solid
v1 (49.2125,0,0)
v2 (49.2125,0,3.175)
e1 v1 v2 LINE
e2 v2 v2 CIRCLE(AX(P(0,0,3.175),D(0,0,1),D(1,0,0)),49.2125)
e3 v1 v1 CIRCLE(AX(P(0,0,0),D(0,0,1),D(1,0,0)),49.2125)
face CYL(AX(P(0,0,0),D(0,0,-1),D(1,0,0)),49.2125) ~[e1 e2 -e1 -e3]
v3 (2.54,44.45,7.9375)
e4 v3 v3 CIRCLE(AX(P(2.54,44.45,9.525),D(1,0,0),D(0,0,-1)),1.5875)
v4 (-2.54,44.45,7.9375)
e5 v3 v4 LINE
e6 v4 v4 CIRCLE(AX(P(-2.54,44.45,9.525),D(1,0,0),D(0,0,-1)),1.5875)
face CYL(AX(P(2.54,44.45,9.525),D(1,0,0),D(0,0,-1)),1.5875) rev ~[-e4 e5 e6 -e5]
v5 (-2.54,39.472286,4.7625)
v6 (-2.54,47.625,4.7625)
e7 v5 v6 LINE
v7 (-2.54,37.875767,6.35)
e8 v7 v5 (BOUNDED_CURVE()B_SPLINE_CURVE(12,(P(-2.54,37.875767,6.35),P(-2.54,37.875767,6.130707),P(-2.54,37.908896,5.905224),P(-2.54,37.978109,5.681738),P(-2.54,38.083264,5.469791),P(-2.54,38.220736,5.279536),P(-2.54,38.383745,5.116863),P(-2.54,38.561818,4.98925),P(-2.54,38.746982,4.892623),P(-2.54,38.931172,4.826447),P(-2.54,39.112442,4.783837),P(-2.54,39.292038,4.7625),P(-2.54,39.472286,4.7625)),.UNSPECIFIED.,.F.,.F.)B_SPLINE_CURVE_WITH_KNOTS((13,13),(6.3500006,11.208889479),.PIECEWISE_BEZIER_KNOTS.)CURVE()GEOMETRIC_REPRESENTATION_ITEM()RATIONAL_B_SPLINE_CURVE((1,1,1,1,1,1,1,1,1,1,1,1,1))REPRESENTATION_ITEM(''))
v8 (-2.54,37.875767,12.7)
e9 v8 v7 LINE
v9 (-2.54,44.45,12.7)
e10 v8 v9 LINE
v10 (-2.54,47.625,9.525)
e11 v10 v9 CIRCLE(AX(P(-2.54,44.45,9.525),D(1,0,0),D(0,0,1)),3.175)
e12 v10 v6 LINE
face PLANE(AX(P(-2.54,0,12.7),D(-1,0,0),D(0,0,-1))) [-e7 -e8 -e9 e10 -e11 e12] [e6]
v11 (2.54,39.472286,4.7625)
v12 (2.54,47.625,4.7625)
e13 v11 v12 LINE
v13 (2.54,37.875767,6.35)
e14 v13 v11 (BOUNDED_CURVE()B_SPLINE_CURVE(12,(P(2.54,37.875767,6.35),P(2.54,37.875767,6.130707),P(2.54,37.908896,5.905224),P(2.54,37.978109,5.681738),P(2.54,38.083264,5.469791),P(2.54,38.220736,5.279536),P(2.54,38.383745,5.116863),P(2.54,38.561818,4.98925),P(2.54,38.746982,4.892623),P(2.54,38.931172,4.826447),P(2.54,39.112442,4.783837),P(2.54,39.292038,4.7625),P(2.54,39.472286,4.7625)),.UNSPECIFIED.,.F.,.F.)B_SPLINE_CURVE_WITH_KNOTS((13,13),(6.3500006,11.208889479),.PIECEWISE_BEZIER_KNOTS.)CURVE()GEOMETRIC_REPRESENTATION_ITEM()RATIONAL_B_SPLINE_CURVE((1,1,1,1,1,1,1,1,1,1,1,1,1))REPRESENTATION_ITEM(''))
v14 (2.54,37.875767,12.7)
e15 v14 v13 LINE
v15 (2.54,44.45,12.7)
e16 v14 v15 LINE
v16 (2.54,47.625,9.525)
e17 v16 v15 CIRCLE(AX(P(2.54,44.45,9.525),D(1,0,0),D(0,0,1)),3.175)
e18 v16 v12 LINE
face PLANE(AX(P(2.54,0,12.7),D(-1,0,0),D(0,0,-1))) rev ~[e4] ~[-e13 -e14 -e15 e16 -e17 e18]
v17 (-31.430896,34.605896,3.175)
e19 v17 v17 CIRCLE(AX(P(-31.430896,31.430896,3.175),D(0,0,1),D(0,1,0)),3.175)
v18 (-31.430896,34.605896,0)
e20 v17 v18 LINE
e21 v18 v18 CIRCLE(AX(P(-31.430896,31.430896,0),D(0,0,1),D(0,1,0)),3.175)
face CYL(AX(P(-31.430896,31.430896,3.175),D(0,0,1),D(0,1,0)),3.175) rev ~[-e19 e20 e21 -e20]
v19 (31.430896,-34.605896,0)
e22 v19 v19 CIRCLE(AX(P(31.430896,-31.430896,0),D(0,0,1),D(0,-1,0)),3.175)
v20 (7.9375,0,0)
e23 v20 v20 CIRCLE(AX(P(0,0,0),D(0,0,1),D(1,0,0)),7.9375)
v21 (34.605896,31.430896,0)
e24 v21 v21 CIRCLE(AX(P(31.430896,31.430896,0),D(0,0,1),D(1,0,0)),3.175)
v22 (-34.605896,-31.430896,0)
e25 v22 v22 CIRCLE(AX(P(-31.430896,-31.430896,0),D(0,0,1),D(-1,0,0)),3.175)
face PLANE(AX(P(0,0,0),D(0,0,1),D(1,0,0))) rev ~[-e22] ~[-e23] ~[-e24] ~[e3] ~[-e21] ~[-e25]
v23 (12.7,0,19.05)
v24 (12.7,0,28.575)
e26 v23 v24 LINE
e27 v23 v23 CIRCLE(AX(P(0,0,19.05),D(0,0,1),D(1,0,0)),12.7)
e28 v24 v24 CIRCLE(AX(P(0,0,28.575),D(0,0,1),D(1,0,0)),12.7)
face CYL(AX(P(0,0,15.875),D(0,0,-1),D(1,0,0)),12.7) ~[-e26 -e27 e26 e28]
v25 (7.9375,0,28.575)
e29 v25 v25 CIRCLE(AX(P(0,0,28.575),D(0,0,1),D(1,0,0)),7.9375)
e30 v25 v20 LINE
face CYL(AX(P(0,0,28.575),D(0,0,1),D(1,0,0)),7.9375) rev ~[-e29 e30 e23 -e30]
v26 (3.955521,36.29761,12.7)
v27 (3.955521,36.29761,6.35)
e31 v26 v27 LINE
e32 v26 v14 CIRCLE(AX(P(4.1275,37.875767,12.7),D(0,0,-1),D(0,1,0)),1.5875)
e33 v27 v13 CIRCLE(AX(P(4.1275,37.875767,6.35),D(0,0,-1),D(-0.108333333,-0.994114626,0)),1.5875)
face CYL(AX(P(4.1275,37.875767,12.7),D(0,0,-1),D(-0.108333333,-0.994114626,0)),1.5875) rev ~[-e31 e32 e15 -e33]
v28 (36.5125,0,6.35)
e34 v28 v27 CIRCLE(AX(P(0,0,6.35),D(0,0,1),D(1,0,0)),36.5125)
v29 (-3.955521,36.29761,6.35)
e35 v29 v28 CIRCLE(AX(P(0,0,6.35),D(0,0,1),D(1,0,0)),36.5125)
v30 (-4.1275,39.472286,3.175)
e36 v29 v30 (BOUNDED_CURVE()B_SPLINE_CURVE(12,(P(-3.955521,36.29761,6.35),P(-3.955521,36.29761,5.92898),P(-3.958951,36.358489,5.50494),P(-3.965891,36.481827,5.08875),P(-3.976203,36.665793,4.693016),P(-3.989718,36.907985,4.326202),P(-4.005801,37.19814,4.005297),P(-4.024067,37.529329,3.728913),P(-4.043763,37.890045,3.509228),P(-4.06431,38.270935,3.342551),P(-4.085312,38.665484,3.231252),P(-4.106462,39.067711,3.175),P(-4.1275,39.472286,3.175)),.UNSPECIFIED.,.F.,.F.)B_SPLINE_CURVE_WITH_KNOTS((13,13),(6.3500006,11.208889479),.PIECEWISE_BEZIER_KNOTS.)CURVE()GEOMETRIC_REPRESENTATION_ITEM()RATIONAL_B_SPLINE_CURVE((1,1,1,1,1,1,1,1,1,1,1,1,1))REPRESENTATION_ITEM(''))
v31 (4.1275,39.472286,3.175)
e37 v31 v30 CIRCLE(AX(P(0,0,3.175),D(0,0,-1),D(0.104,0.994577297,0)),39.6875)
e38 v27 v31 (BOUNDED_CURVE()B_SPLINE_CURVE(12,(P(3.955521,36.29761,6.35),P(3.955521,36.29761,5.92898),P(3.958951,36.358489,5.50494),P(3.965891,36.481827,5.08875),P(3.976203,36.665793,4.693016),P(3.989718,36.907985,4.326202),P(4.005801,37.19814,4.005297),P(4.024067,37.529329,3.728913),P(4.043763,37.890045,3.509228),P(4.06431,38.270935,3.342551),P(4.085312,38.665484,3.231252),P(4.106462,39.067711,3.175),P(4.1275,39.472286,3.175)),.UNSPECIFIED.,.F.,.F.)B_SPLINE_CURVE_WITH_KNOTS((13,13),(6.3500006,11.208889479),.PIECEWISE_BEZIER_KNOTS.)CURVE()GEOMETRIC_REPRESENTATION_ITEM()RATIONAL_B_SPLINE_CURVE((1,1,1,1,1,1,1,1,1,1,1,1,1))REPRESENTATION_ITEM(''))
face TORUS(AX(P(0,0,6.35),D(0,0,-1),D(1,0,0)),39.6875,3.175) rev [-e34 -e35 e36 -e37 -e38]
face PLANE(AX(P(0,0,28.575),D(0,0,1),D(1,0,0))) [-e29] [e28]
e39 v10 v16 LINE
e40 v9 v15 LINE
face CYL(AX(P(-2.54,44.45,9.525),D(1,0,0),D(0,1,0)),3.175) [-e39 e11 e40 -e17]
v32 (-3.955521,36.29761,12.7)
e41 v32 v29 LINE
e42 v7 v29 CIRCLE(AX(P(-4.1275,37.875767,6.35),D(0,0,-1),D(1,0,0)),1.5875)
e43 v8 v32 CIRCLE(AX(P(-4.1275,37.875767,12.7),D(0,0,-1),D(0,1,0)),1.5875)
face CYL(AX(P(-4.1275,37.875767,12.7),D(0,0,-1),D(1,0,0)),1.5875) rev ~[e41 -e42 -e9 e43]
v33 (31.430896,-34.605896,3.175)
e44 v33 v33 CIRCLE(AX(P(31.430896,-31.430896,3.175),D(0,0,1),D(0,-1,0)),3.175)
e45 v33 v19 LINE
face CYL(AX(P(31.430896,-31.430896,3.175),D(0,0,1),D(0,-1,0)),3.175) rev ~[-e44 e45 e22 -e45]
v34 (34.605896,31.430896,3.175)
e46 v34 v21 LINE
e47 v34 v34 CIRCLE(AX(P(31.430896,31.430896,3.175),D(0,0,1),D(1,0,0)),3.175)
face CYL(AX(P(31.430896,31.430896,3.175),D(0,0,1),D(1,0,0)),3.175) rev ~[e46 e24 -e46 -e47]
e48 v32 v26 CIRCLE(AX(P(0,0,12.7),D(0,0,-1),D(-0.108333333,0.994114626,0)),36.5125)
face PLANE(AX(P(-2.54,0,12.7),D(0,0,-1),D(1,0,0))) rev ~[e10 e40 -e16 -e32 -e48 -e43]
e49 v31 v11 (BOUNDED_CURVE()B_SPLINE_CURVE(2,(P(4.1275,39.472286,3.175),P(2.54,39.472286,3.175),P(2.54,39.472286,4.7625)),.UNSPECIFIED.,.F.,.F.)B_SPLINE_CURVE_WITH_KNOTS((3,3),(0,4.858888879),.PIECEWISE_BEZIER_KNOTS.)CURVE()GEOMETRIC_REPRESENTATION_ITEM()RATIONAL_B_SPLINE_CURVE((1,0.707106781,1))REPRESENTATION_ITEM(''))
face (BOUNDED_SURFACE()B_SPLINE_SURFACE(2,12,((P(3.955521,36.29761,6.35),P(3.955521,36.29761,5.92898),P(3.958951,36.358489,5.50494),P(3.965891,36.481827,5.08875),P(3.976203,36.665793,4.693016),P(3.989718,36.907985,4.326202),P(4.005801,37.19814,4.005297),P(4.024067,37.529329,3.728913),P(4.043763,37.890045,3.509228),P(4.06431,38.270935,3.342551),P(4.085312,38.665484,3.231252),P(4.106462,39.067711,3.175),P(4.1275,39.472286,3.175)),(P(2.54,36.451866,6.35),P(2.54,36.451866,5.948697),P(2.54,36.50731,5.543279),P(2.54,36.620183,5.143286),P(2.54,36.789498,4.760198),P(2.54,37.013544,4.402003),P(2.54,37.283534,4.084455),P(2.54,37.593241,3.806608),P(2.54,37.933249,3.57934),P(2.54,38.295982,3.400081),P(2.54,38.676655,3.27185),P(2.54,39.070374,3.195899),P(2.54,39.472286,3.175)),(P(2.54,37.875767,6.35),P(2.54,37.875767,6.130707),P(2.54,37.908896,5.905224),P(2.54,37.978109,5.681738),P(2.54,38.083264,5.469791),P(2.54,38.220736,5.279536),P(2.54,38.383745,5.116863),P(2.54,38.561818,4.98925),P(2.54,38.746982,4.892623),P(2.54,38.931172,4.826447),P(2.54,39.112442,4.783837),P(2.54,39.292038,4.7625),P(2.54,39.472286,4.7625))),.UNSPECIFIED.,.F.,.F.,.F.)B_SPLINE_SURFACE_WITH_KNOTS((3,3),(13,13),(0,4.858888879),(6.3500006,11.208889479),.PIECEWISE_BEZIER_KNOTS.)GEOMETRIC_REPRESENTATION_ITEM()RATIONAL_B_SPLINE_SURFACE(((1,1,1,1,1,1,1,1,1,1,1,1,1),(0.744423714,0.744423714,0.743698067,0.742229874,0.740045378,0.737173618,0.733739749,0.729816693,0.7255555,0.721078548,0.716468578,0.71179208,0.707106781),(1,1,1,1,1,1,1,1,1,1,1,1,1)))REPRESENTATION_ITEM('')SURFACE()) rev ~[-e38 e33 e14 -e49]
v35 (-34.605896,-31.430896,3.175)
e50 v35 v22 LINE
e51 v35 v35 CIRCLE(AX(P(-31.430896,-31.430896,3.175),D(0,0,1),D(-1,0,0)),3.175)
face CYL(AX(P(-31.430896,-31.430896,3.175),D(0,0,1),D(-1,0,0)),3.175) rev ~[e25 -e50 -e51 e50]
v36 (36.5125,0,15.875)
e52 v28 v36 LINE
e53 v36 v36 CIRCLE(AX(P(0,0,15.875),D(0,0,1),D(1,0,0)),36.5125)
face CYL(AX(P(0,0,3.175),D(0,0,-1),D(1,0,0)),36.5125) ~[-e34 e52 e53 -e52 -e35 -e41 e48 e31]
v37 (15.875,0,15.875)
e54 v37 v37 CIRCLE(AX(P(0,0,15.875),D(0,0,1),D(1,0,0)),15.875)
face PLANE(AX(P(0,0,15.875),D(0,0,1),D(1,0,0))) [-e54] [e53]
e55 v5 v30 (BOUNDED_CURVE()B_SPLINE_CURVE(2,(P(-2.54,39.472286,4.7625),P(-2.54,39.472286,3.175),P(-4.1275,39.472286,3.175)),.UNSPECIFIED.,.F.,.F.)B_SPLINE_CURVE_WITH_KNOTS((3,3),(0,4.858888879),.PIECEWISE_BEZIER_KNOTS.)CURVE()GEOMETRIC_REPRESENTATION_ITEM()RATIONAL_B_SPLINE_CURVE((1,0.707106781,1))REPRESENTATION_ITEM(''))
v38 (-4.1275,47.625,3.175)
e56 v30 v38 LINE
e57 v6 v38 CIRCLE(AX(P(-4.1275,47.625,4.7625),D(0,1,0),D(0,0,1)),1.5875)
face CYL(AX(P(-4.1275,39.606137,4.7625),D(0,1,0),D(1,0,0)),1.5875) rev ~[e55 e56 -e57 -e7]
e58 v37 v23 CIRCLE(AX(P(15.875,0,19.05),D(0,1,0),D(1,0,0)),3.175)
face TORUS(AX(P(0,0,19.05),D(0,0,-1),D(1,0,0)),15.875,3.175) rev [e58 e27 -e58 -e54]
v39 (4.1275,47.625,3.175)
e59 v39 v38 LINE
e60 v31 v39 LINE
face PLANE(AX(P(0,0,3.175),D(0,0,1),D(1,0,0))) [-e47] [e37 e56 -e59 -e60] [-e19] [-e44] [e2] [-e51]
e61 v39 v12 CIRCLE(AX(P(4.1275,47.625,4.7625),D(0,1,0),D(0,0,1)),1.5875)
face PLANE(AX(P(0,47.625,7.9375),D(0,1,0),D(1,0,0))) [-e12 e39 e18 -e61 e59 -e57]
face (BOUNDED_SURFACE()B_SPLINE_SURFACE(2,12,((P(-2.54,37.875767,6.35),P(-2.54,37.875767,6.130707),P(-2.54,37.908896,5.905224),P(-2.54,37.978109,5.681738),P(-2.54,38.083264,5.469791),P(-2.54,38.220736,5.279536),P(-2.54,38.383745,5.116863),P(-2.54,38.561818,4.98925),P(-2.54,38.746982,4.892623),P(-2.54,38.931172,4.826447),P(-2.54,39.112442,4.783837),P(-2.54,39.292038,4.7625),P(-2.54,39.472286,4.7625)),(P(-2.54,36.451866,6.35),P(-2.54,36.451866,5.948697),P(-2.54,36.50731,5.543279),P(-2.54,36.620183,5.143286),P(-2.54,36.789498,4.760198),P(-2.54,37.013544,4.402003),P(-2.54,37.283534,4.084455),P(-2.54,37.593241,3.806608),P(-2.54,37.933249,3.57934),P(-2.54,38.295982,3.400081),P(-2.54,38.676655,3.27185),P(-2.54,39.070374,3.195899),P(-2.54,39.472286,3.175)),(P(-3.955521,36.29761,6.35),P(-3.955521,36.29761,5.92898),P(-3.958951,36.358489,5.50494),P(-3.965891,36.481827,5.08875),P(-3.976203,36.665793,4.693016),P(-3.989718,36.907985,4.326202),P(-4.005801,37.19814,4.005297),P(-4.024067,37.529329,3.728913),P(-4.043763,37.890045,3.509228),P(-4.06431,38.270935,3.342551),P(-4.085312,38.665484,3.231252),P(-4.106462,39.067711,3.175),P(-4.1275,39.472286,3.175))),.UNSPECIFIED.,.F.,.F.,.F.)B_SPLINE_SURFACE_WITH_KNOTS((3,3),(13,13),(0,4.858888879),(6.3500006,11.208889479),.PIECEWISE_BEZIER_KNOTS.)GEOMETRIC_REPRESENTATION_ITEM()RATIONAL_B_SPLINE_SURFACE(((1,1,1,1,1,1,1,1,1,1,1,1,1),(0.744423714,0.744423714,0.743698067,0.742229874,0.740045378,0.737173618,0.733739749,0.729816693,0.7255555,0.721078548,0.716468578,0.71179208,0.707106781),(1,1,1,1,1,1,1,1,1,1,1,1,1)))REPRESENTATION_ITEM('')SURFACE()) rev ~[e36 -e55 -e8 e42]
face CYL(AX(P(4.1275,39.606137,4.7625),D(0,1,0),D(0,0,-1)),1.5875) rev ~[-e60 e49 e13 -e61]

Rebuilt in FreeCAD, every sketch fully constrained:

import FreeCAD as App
import Part
import Sketcher
from FreeCAD import Vector
Q = App.Units.Quantity


def edges_at(feature, points):
    """Names of the edges that pass closest to the given points."""
    edges = feature.Shape.Edges
    near = lambda p: min(range(len(edges)), key=lambda i: edges[i].distToShape(Part.Vertex(*p))[0])
    return sorted({f"Edge{near(p) + 1}" for p in points})


def add_polygon(sketch, points):
    """Adds a closed chain of lines whose ends are joined by coincident constraints."""
    first, n = sketch.GeometryCount, len(points)
    for a, b in zip(points, points[1:] + points[:1]):
        sketch.addGeometry(Part.LineSegment(App.Vector(*a, 0), App.Vector(*b, 0)), False)
    for i in range(n):
        sketch.addConstraint(Sketcher.Constraint("Coincident", first + i, 2, first + (i + 1) % n, 1))

doc = App.newDocument("Part")
params = doc.addObject("Spreadsheet::Sheet", "Params")
for row, (alias, value) in enumerate([
    ("sketch1_diameter", "3.875 in"),
    ("pad1_length", "0.125 in"),
    ("sketch2_diameter", "0.25 in"),
    ("sketch3_diameter", "2.875 in"),
    ("pad2_length", "0.5 in"),
    ("sketch4_diameter", "1 in"),
    ("pad3_length", "0.5 in"),
    ("fillet_radius", "0.125 in"),
    ("sketch5_width", "0.2 in"),
    ("sketch5_height", "0.375 in"),
    ("pad4_length", "1.875 in"),
    ("sketch6_diameter", "0.625 in"),
    ("fillet2_radius", "0.125 in"),
    ("sketch7_diameter", "0.125 in"),
    ("fillet3_radius", "0.0625 in"),
], start=1):
    params.set(f"A{row}", alias)
    params.set(f"B{row}", "=" + value)
    params.setAlias(f"B{row}", alias)

body = doc.addObject("PartDesign::Body", "Body")

sketch1 = body.newObject("Sketcher::SketchObject", "Sketch")
sketch1.AttachmentSupport = (doc.getObject("XY_Plane"), [""])
sketch1.MapMode = "FlatFace"
sketch1.addGeometry(Part.Circle(Vector(0, 0, 0), Vector(0, 0, 1), 49), False)
sketch1.addConstraint(Sketcher.Constraint("Coincident", 0, 3, -1, 1))
sketch1.addConstraint(Sketcher.Constraint("Diameter", 0, Q("3.875 in")))
sketch1.setExpression("Constraints[1]", "Params.sketch1_diameter")
pad1 = body.newObject("PartDesign::Pad", "Pad")
pad1.Profile = sketch1
pad1.setExpression("Length", "Params.pad1_length")

sketch2 = body.newObject("Sketcher::SketchObject", "Sketch001")
sketch2.AttachmentSupport = (doc.getObject("XY_Plane"), [""])
sketch2.MapMode = "FlatFace"
sketch2.AttachmentOffset = App.Placement(Vector(0, 0, 0.125 * 25.4), App.Rotation())
sketch2.addGeometry(Part.Circle(Vector(31.4, 31.4, 0), Vector(0, 0, 1), 3.2), False)
sketch2.addConstraint(Sketcher.Constraint("Diameter", 0, Q("0.25 in")))
sketch2.addConstraint(Sketcher.Constraint("DistanceX", -1, 1, 0, 3, Q("31.430896 mm")))
sketch2.addConstraint(Sketcher.Constraint("DistanceY", -1, 1, 0, 3, Q("31.430896 mm")))
sketch2.setExpression("Constraints[0]", "Params.sketch2_diameter")
pocket1 = body.newObject("PartDesign::Pocket", "Pocket")
pocket1.Profile = sketch2
pocket1.Type = "ThroughAll"
doc.recompute()

polarpattern = body.newObject("PartDesign::PolarPattern", "PolarPattern")
polarpattern.Originals = [pocket1]
polarpattern.Axis = (doc.getObject("Z_Axis"), [""])
polarpattern.Angle = 360
polarpattern.Occurrences = 4
body.Tip = polarpattern

sketch3 = body.newObject("Sketcher::SketchObject", "Sketch002")
sketch3.AttachmentSupport = (doc.getObject("XY_Plane"), [""])
sketch3.MapMode = "FlatFace"
sketch3.AttachmentOffset = App.Placement(Vector(0, 0, 0.125 * 25.4), App.Rotation())
sketch3.addGeometry(Part.Circle(Vector(0, 0, 0), Vector(0, 0, 1), 37), False)
sketch3.addConstraint(Sketcher.Constraint("Coincident", 0, 3, -1, 1))
sketch3.addConstraint(Sketcher.Constraint("Diameter", 0, Q("2.875 in")))
sketch3.setExpression("Constraints[1]", "Params.sketch3_diameter")
pad2 = body.newObject("PartDesign::Pad", "Pad001")
pad2.Profile = sketch3
pad2.setExpression("Length", "Params.pad2_length")

sketch4 = body.newObject("Sketcher::SketchObject", "Sketch003")
sketch4.AttachmentSupport = (doc.getObject("XY_Plane"), [""])
sketch4.MapMode = "FlatFace"
sketch4.AttachmentOffset = App.Placement(Vector(0, 0, 0.625 * 25.4), App.Rotation())
sketch4.addGeometry(Part.Circle(Vector(0, 0, 0), Vector(0, 0, 1), 13), False)
sketch4.addConstraint(Sketcher.Constraint("Coincident", 0, 3, -1, 1))
sketch4.addConstraint(Sketcher.Constraint("Diameter", 0, Q("1 in")))
sketch4.setExpression("Constraints[1]", "Params.sketch4_diameter")
pad3 = body.newObject("PartDesign::Pad", "Pad002")
pad3.Profile = sketch4
pad3.setExpression("Length", "Params.pad3_length")
doc.recompute()

fillet = body.newObject("PartDesign::Fillet", "Fillet")
fillet.Base = (pad3, edges_at(pad3, [(-36.513, 0, 3.175), (-12.7, 0, 15.875)]))
fillet.setExpression("Radius", "Params.fillet_radius")

sketch5 = body.newObject("Sketcher::SketchObject", "Sketch004")
sketch5.AttachmentSupport = (doc.getObject("XZ_Plane"), [""])
sketch5.MapMode = "FlatFace"
add_polygon(sketch5, [(-3, 3), (-3, 13), (3, 13), (3, 3)])
sketch5.addConstraint(Sketcher.Constraint("Vertical", 0))
sketch5.addConstraint(Sketcher.Constraint("Horizontal", 1))
sketch5.addConstraint(Sketcher.Constraint("Vertical", 2))
sketch5.addConstraint(Sketcher.Constraint("Horizontal", 3))
sketch5.addConstraint(Sketcher.Constraint("DistanceX", 1, 1, 1, 2, Q("0.2 in")))
sketch5.addConstraint(Sketcher.Constraint("DistanceX", 0, 2, -1, 1, Q("0.1 in")))
sketch5.addConstraint(Sketcher.Constraint("DistanceY", -1, 1, 0, 2, Q("0.5 in")))
sketch5.addConstraint(Sketcher.Constraint("DistanceY", 0, 1, 0, 2, Q("0.375 in")))
sketch5.setExpression("Constraints[8]", "Params.sketch5_width")
sketch5.setExpression("Constraints[11]", "Params.sketch5_height")
pad4 = body.newObject("PartDesign::Pad", "Pad003")
pad4.Profile = sketch5
pad4.setExpression("Length", "Params.pad4_length")
pad4.Reversed = True

sketch6 = body.newObject("Sketcher::SketchObject", "Sketch005")
sketch6.AttachmentSupport = (doc.getObject("XY_Plane"), [""])
sketch6.MapMode = "FlatFace"
sketch6.AttachmentOffset = App.Placement(Vector(0, 0, 1.125 * 25.4), App.Rotation())
sketch6.addGeometry(Part.Circle(Vector(0, 0, 0), Vector(0, 0, 1), 8), False)
sketch6.addConstraint(Sketcher.Constraint("Coincident", 0, 3, -1, 1))
sketch6.addConstraint(Sketcher.Constraint("Diameter", 0, Q("0.625 in")))
sketch6.setExpression("Constraints[1]", "Params.sketch6_diameter")
pocket2 = body.newObject("PartDesign::Pocket", "Pocket001")
pocket2.Profile = sketch6
pocket2.Type = "ThroughAll"
doc.recompute()

fillet2 = body.newObject("PartDesign::Fillet", "Fillet001")
fillet2.Base = (pocket2, edges_at(pocket2, [(0, 47.625, 12.7)]))
fillet2.setExpression("Radius", "Params.fillet2_radius")

sketch7 = body.newObject("Sketcher::SketchObject", "Sketch006")
sketch7.AttachmentSupport = (doc.getObject("YZ_Plane"), [""])
sketch7.MapMode = "FlatFace"
sketch7.AttachmentOffset = App.Placement(Vector(0, 0, 0.1 * 25.4), App.Rotation())
sketch7.addGeometry(Part.Circle(Vector(44.5, 9.5, 0), Vector(0, 0, 1), 1.6), False)
sketch7.addConstraint(Sketcher.Constraint("Diameter", 0, Q("0.125 in")))
sketch7.addConstraint(Sketcher.Constraint("DistanceX", -1, 1, 0, 3, Q("1.75 in")))
sketch7.addConstraint(Sketcher.Constraint("DistanceY", -1, 1, 0, 3, Q("0.375 in")))
sketch7.setExpression("Constraints[0]", "Params.sketch7_diameter")
pocket3 = body.newObject("PartDesign::Pocket", "Pocket002")
pocket3.Profile = sketch7
pocket3.Type = "UpToFirst"
doc.recompute()

fillet3 = body.newObject("PartDesign::Fillet", "Fillet002")
fillet3.Base = (pocket3, edges_at(pocket3, [
    (-2.54, 36.424, 9.525),
    (-2.54, 43.616, 3.175),
    (2.54, 43.616, 3.175),
    (2.54, 36.424, 9.525),
]))
fillet3.setExpression("Radius", "Params.fillet3_radius")

doc.recompute()
